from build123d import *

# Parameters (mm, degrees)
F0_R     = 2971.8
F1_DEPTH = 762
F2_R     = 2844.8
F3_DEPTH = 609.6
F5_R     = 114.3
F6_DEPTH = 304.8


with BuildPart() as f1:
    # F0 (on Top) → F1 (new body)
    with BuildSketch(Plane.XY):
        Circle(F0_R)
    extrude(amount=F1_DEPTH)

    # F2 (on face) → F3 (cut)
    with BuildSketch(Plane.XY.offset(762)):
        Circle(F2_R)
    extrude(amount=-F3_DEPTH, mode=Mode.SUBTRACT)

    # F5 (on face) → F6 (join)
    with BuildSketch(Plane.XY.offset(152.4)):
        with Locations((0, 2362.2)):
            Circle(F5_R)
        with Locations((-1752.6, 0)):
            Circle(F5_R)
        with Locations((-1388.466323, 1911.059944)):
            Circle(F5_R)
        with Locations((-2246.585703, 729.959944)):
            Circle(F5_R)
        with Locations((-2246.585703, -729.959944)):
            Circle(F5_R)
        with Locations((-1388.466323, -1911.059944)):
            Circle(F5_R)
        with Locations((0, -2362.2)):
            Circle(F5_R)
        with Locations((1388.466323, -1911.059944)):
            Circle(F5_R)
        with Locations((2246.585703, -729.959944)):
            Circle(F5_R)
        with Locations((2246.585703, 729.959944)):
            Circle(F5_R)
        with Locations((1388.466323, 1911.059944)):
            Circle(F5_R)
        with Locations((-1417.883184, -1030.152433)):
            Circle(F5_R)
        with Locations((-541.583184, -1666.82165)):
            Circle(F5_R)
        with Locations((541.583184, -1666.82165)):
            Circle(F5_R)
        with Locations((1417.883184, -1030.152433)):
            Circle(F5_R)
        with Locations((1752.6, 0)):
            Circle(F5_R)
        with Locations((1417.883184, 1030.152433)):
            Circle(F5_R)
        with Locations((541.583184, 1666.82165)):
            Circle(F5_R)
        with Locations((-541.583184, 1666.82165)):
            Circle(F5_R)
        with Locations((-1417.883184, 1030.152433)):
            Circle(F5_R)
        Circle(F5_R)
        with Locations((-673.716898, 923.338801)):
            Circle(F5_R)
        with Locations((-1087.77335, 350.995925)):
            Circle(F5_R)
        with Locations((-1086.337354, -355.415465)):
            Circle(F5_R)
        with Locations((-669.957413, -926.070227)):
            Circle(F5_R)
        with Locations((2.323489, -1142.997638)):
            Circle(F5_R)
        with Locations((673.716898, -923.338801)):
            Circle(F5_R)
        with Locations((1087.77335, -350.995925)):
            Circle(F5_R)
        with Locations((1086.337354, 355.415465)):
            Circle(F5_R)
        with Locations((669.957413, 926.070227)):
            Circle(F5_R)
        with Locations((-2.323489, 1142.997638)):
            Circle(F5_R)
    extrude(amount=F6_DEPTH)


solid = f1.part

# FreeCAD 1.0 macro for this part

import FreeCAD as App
import Part
import Sketcher
Q = App.Units.Quantity

doc = App.newDocument("Part")
params = doc.addObject("Spreadsheet::Sheet", "Params")
for row, (alias, value) in enumerate([
    ("sketch1_diameter", "234 in"),
    ("pad1_length", "30 in"),
    ("sketch2_diameter", "224 in"),
    ("pocket1_length", "24 in"),
    ("sketch3_diameter", "9 in"),
    ("pad2_length", "12 in"),
], start=1):
    params.set(f"A{row}", alias)
    params.set(f"B{row}", "=" + value)
    params.setAlias(f"B{row}", alias)

body = doc.addObject("PartDesign::Body", "Body")

sketch1 = body.newObject("Sketcher::SketchObject", "Sketch")
sketch1.AttachmentSupport = (doc.getObject("XY_Plane"), [""])
sketch1.MapMode = "FlatFace"
sketch1.addGeometry(Part.Circle(App.Vector(0, 0, 0), App.Vector(0, 0, 1), 2971.8), False)
sketch1.addConstraint(Sketcher.Constraint("Coincident", 0, 3, -1, 1))
sketch1.addConstraint(Sketcher.Constraint("Diameter", 0, Q("234 in")))
sketch1.setExpression("Constraints[1]", "Params.sketch1_diameter")
pad1 = body.newObject("PartDesign::Pad", "Pad")
pad1.Profile = sketch1
pad1.setExpression("Length", "Params.pad1_length")

sketch2 = body.newObject("Sketcher::SketchObject", "Sketch001")
sketch2.AttachmentSupport = (doc.getObject("XY_Plane"), [""])
sketch2.MapMode = "FlatFace"
sketch2.AttachmentOffset = App.Placement(App.Vector(0, 0, 30 * 25.4), App.Rotation())
sketch2.addGeometry(Part.Circle(App.Vector(0, 0, 0), App.Vector(0, 0, 1), 2844.8), False)
sketch2.addConstraint(Sketcher.Constraint("Coincident", 0, 3, -1, 1))
sketch2.addConstraint(Sketcher.Constraint("Diameter", 0, Q("224 in")))
sketch2.setExpression("Constraints[1]", "Params.sketch2_diameter")
pocket1 = body.newObject("PartDesign::Pocket", "Pocket")
pocket1.Profile = sketch2
pocket1.setExpression("Length", "Params.pocket1_length")

sketch3 = body.newObject("Sketcher::SketchObject", "Sketch002")
sketch3.AttachmentSupport = (doc.getObject("XY_Plane"), [""])
sketch3.MapMode = "FlatFace"
sketch3.AttachmentOffset = App.Placement(App.Vector(0, 0, 6 * 25.4), App.Rotation())
sketch3.addGeometry(Part.Circle(App.Vector(0, 2362.2, 0), App.Vector(0, 0, 1), 114.3), False)
sketch3.addGeometry(Part.Circle(App.Vector(-1752.6, 0, 0), App.Vector(0, 0, 1), 114.3), False)
sketch3.addGeometry(Part.Circle(App.Vector(-1388.466323, 1911.059944, 0), App.Vector(0, 0, 1), 114.3), False)
sketch3.addGeometry(Part.Circle(App.Vector(-2246.585703, 729.959944, 0), App.Vector(0, 0, 1), 114.3), False)
sketch3.addGeometry(Part.Circle(App.Vector(-2246.585703, -729.959944, 0), App.Vector(0, 0, 1), 114.3), False)
sketch3.addGeometry(Part.Circle(App.Vector(-1388.466323, -1911.059944, 0), App.Vector(0, 0, 1), 114.3), False)
sketch3.addGeometry(Part.Circle(App.Vector(0, -2362.2, 0), App.Vector(0, 0, 1), 114.3), False)
sketch3.addGeometry(Part.Circle(App.Vector(1388.466323, -1911.059944, 0), App.Vector(0, 0, 1), 114.3), False)
sketch3.addGeometry(Part.Circle(App.Vector(2246.585703, -729.959944, 0), App.Vector(0, 0, 1), 114.3), False)
sketch3.addGeometry(Part.Circle(App.Vector(2246.585703, 729.959944, 0), App.Vector(0, 0, 1), 114.3), False)
sketch3.addGeometry(Part.Circle(App.Vector(1388.466323, 1911.059944, 0), App.Vector(0, 0, 1), 114.3), False)
sketch3.addGeometry(Part.Circle(App.Vector(-1417.883184, -1030.152433, 0), App.Vector(0, 0, 1), 114.3), False)
sketch3.addGeometry(Part.Circle(App.Vector(-541.583184, -1666.82165, 0), App.Vector(0, 0, 1), 114.3), False)
sketch3.addGeometry(Part.Circle(App.Vector(541.583184, -1666.82165, 0), App.Vector(0, 0, 1), 114.3), False)
sketch3.addGeometry(Part.Circle(App.Vector(1417.883184, -1030.152433, 0), App.Vector(0, 0, 1), 114.3), False)
sketch3.addGeometry(Part.Circle(App.Vector(1752.6, 0, 0), App.Vector(0, 0, 1), 114.3), False)
sketch3.addGeometry(Part.Circle(App.Vector(1417.883184, 1030.152433, 0), App.Vector(0, 0, 1), 114.3), False)
sketch3.addGeometry(Part.Circle(App.Vector(541.583184, 1666.82165, 0), App.Vector(0, 0, 1), 114.3), False)
sketch3.addGeometry(Part.Circle(App.Vector(-541.583184, 1666.82165, 0), App.Vector(0, 0, 1), 114.3), False)
sketch3.addGeometry(Part.Circle(App.Vector(-1417.883184, 1030.152433, 0), App.Vector(0, 0, 1), 114.3), False)
sketch3.addGeometry(Part.Circle(App.Vector(0, 0, 0), App.Vector(0, 0, 1), 114.3), False)
sketch3.addGeometry(Part.Circle(App.Vector(-673.716898, 923.338801, 0), App.Vector(0, 0, 1), 114.3), False)
sketch3.addGeometry(Part.Circle(App.Vector(-1087.77335, 350.995925, 0), App.Vector(0, 0, 1), 114.3), False)
sketch3.addGeometry(Part.Circle(App.Vector(-1086.337354, -355.415465, 0), App.Vector(0, 0, 1), 114.3), False)
sketch3.addGeometry(Part.Circle(App.Vector(-669.957413, -926.070227, 0), App.Vector(0, 0, 1), 114.3), False)
sketch3.addGeometry(Part.Circle(App.Vector(2.323489, -1142.997638, 0), App.Vector(0, 0, 1), 114.3), False)
sketch3.addGeometry(Part.Circle(App.Vector(673.716898, -923.338801, 0), App.Vector(0, 0, 1), 114.3), False)
sketch3.addGeometry(Part.Circle(App.Vector(1087.77335, -350.995925, 0), App.Vector(0, 0, 1), 114.3), False)
sketch3.addGeometry(Part.Circle(App.Vector(1086.337354, 355.415465, 0), App.Vector(0, 0, 1), 114.3), False)
sketch3.addGeometry(Part.Circle(App.Vector(669.957413, 926.070227, 0), App.Vector(0, 0, 1), 114.3), False)
sketch3.addGeometry(Part.Circle(App.Vector(-2.323489, 1142.997638, 0), App.Vector(0, 0, 1), 114.3), False)
sketch3.addConstraint(Sketcher.Constraint("Coincident", 20, 3, -1, 1))
sketch3.addConstraint(Sketcher.Constraint("Equal", 0, 1))
sketch3.addConstraint(Sketcher.Constraint("Equal", 1, 2))
sketch3.addConstraint(Sketcher.Constraint("Equal", 2, 3))
sketch3.addConstraint(Sketcher.Constraint("Equal", 3, 4))
sketch3.addConstraint(Sketcher.Constraint("Equal", 4, 5))
sketch3.addConstraint(Sketcher.Constraint("Equal", 5, 6))
sketch3.addConstraint(Sketcher.Constraint("Equal", 6, 7))
sketch3.addConstraint(Sketcher.Constraint("Equal", 7, 8))
sketch3.addConstraint(Sketcher.Constraint("Equal", 8, 9))
sketch3.addConstraint(Sketcher.Constraint("Equal", 9, 10))
sketch3.addConstraint(Sketcher.Constraint("Equal", 10, 11))
sketch3.addConstraint(Sketcher.Constraint("Equal", 11, 12))
sketch3.addConstraint(Sketcher.Constraint("Equal", 12, 13))
sketch3.addConstraint(Sketcher.Constraint("Equal", 13, 14))
sketch3.addConstraint(Sketcher.Constraint("Equal", 14, 15))
sketch3.addConstraint(Sketcher.Constraint("Equal", 15, 16))
sketch3.addConstraint(Sketcher.Constraint("Equal", 16, 17))
sketch3.addConstraint(Sketcher.Constraint("Equal", 17, 18))
sketch3.addConstraint(Sketcher.Constraint("Equal", 18, 19))
sketch3.addConstraint(Sketcher.Constraint("Equal", 19, 20))
sketch3.addConstraint(Sketcher.Constraint("Equal", 20, 21))
sketch3.addConstraint(Sketcher.Constraint("Equal", 21, 22))
sketch3.addConstraint(Sketcher.Constraint("Equal", 22, 23))
sketch3.addConstraint(Sketcher.Constraint("Equal", 23, 24))
sketch3.addConstraint(Sketcher.Constraint("Equal", 24, 25))
sketch3.addConstraint(Sketcher.Constraint("Equal", 25, 26))
sketch3.addConstraint(Sketcher.Constraint("Equal", 26, 27))
sketch3.addConstraint(Sketcher.Constraint("Equal", 27, 28))
sketch3.addConstraint(Sketcher.Constraint("Equal", 28, 29))
sketch3.addConstraint(Sketcher.Constraint("Equal", 29, 30))
sketch3.addConstraint(Sketcher.Constraint("Symmetric", 0, 3, 6, 3, -1, 1))
sketch3.addConstraint(Sketcher.Constraint("Symmetric", 2, 3, 7, 3, -1, 1))
sketch3.addConstraint(Sketcher.Constraint("Symmetric", 3, 3, 8, 3, -1, 1))
sketch3.addConstraint(Sketcher.Constraint("Symmetric", 4, 3, 9, 3, -1, 1))
sketch3.addConstraint(Sketcher.Constraint("Symmetric", 5, 3, 10, 3, -1, 1))
sketch3.addConstraint(Sketcher.Constraint("Symmetric", 1, 3, 15, 3, -1, 1))
sketch3.addConstraint(Sketcher.Constraint("Symmetric", 11, 3, 16, 3, -1, 1))
sketch3.addConstraint(Sketcher.Constraint("Symmetric", 12, 3, 17, 3, -1, 1))
sketch3.addConstraint(Sketcher.Constraint("Symmetric", 13, 3, 18, 3, -1, 1))
sketch3.addConstraint(Sketcher.Constraint("Symmetric", 14, 3, 19, 3, -1, 1))
sketch3.addConstraint(Sketcher.Constraint("Symmetric", 21, 3, 26, 3, -1, 1))
sketch3.addConstraint(Sketcher.Constraint("Symmetric", 22, 3, 27, 3, -1, 1))
sketch3.addConstraint(Sketcher.Constraint("Symmetric", 23, 3, 28, 3, -1, 1))
sketch3.addConstraint(Sketcher.Constraint("Symmetric", 24, 3, 29, 3, -1, 1))
sketch3.addConstraint(Sketcher.Constraint("Symmetric", 25, 3, 30, 3, -1, 1))
sketch3.addConstraint(Sketcher.Constraint("Symmetric", 5, 3, 7, 3, -2))
sketch3.addConstraint(Sketcher.Constraint("Symmetric", 4, 3, 8, 3, -2))
sketch3.addConstraint(Sketcher.Constraint("Symmetric", 12, 3, 13, 3, -2))
sketch3.addConstraint(Sketcher.Constraint("Symmetric", 11, 3, 14, 3, -2))
sketch3.addConstraint(Sketcher.Constraint("PointOnObject", 0, 3, -2))
sketch3.addConstraint(Sketcher.Constraint("PointOnObject", 1, 3, -1))
sketch3.addConstraint(Sketcher.Constraint("Diameter", 0, Q("9 in")))
sketch3.addConstraint(Sketcher.Constraint("DistanceY", -1, 1, 0, 3, Q("93 in")))
sketch3.addConstraint(Sketcher.Constraint("DistanceX", 1, 3, -1, 1, Q("69 in")))
sketch3.addConstraint(Sketcher.Constraint("DistanceY", 3, 3, 2, 3, Q("46.5 in")))
sketch3.addConstraint(Sketcher.Constraint("DistanceX", 11, 3, 12, 3, Q("34.5 in")))
sketch3.addConstraint(Sketcher.Constraint("DistanceX", 21, 3, -1, 1, Q("673.716898 mm")))
sketch3.addConstraint(Sketcher.Constraint("DistanceY", -1, 1, 21, 3, Q("923.338801 mm")))
sketch3.addConstraint(Sketcher.Constraint("DistanceX", 24, 3, 25, 3, Q("672.280902 mm")))
sketch3.addConstraint(Sketcher.Constraint("DistanceY", 12, 3, -1, 1, Q("1666.82165 mm")))
sketch3.addConstraint(Sketcher.Constraint("DistanceX", 22, 3, -1, 1, Q("1087.77335 mm")))
sketch3.addConstraint(Sketcher.Constraint("DistanceX", -1, 1, 25, 3, Q("2.323489 mm")))
sketch3.addConstraint(Sketcher.Constraint("DistanceY", 25, 3, -1, 1, Q("1142.997638 mm")))
sketch3.addConstraint(Sketcher.Constraint("DistanceX", 3, 3, 2, 3, Q("858.11938 mm")))
sketch3.addConstraint(Sketcher.Constraint("DistanceY", 4, 3, 3, 3, Q("1459.919888 mm")))
sketch3.addConstraint(Sketcher.Constraint("DistanceX", 11, 3, 5, 3, Q("29.416861 mm")))
sketch3.addConstraint(Sketcher.Constraint("DistanceY", 5, 3, 11, 3, Q("880.907511 mm")))
sketch3.addConstraint(Sketcher.Constraint("DistanceX", 12, 3, 13, 3, Q("1083.166368 mm")))
sketch3.addConstraint(Sketcher.Constraint("DistanceY", 22, 3, 19, 3, Q("679.156508 mm")))
sketch3.addConstraint(Sketcher.Constraint("DistanceY", 23, 3, 22, 3, Q("706.41139 mm")))
sketch3.addConstraint(Sketcher.Constraint("DistanceX", 11, 3, 23, 3, Q("331.54583 mm")))
sketch3.addConstraint(Sketcher.Constraint("DistanceY", 25, 3, 24, 3, Q("216.927411 mm")))
sketch3.setExpression("Constraints[52]", "Params.sketch3_diameter")
pad2 = body.newObject("PartDesign::Pad", "Pad001")
pad2.Profile = sketch3
pad2.setExpression("Length", "Params.pad2_length")

doc.recompute()
